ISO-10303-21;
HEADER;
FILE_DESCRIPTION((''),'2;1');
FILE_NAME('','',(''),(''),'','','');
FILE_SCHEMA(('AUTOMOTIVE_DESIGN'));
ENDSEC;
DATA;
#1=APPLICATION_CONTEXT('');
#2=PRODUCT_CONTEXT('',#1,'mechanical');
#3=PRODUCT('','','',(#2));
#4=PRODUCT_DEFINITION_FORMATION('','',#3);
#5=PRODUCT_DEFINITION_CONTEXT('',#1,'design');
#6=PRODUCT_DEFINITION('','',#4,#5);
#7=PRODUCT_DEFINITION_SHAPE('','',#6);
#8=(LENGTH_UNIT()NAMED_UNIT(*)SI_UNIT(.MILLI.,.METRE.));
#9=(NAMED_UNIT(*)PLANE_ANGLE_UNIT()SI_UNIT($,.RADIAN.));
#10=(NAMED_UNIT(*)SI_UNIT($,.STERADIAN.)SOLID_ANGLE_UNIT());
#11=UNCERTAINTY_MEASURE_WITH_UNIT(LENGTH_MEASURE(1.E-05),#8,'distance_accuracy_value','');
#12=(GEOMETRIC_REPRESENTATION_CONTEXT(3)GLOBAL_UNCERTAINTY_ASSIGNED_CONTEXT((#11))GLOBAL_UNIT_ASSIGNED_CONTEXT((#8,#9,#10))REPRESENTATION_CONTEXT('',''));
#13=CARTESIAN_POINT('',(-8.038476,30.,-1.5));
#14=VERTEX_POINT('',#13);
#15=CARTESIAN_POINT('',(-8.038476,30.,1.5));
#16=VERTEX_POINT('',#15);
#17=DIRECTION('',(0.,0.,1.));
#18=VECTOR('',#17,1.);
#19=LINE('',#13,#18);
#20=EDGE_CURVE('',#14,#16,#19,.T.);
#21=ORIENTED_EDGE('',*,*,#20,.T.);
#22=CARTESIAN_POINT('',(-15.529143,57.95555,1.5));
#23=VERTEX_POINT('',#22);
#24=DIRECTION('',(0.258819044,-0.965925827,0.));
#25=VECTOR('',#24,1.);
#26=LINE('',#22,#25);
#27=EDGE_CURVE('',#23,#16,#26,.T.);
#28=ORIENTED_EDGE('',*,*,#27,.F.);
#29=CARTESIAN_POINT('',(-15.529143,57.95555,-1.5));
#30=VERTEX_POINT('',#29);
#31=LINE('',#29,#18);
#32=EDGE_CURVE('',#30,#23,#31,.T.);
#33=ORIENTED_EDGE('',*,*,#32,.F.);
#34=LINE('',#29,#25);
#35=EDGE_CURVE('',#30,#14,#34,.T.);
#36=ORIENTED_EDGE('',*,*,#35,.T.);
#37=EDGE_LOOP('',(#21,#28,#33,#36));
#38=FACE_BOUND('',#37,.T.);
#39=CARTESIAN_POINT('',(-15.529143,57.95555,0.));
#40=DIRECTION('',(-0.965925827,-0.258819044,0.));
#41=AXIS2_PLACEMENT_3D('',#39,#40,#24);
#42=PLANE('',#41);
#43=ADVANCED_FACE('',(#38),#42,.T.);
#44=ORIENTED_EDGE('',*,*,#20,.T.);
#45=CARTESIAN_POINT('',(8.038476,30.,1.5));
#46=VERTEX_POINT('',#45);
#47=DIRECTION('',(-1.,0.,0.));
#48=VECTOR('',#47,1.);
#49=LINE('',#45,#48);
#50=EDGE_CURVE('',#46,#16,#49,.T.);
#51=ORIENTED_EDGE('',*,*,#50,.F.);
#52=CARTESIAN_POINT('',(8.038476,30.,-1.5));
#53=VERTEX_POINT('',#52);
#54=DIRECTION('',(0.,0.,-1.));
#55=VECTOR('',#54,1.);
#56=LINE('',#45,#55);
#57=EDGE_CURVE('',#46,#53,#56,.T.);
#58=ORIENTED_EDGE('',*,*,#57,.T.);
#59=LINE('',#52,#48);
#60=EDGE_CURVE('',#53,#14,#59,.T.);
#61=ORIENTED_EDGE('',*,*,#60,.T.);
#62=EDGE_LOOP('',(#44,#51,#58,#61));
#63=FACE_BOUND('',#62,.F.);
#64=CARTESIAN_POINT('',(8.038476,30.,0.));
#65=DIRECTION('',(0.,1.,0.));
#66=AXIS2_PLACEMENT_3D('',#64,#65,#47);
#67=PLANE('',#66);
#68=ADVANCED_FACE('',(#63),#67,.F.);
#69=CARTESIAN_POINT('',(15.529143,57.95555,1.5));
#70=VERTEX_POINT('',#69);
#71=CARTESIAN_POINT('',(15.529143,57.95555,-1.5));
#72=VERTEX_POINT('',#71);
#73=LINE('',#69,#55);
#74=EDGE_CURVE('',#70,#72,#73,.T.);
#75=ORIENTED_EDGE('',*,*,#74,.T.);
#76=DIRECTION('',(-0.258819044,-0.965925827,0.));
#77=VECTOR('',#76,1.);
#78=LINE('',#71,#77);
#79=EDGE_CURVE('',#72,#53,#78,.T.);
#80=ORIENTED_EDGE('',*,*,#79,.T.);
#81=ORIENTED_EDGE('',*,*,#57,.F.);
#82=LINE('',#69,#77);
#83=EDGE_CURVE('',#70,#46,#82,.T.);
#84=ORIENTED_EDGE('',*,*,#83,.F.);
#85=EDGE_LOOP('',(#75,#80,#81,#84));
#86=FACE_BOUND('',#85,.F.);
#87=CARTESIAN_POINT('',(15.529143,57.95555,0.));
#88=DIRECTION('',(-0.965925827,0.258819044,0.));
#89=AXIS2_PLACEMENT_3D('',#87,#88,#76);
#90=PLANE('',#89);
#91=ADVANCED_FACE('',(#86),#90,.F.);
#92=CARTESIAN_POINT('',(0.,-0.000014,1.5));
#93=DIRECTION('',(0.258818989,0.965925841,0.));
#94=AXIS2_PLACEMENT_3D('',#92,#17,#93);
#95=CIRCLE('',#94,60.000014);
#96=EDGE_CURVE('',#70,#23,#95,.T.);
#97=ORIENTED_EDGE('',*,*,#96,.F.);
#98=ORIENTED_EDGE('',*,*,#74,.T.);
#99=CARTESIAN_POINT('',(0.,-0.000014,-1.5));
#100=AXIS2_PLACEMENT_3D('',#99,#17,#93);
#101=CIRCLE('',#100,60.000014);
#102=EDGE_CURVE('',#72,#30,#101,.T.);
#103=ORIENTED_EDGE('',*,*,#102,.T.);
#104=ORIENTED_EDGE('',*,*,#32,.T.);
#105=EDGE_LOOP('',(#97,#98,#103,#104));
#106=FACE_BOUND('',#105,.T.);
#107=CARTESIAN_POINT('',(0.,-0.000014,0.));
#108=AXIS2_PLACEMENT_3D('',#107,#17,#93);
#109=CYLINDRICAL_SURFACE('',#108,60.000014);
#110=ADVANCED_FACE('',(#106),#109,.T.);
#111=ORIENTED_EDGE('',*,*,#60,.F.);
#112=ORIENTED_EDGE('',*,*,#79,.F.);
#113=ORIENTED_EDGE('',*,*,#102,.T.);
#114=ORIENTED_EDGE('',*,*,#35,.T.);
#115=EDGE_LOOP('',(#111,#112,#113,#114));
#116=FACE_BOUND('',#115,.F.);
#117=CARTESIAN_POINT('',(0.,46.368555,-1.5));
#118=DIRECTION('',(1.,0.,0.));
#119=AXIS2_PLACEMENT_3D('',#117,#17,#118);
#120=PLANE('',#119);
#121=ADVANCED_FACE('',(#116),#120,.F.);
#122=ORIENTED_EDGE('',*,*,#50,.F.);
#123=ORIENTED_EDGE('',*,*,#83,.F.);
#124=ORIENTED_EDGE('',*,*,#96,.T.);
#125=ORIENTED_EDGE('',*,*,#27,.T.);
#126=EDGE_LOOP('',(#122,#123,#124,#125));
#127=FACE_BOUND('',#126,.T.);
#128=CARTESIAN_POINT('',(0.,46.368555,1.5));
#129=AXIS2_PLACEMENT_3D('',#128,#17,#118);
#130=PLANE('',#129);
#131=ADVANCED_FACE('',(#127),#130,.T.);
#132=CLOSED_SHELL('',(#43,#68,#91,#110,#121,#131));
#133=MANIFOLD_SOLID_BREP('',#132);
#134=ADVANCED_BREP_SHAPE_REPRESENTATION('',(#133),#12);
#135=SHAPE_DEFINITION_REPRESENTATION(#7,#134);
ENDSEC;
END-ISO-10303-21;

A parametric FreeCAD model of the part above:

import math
import FreeCAD as App
import Part
import Sketcher
Q = App.Units.Quantity

doc = App.newDocument("Part")
body = doc.addObject("PartDesign::Body", "Body")

sketch1 = body.newObject("Sketcher::SketchObject", "Sketch")
sketch1.AttachmentSupport = (doc.getObject("XY_Plane"), [""])
sketch1.MapMode = "FlatFace"
sketch1.addGeometry(Part.ArcOfCircle(Part.Circle(App.Vector(0, 0, 0), App.Vector(0, 0, 1), 60), math.radians(75), math.radians(105)), False)
sketch1.addGeometry(Part.LineSegment(App.Vector(-16, 58, 0), App.Vector(-8, 30, 0)), False)
sketch1.addGeometry(Part.LineSegment(App.Vector(-8, 30, 0), App.Vector(8, 30, 0)), False)
sketch1.addGeometry(Part.LineSegment(App.Vector(8, 30, 0), App.Vector(16, 58, 0)), False)
sketch1.addConstraint(Sketcher.Constraint("Coincident", 0, 2, 1, 1))
sketch1.addConstraint(Sketcher.Constraint("Coincident", 1, 2, 2, 1))
sketch1.addConstraint(Sketcher.Constraint("Coincident", 2, 2, 3, 1))
sketch1.addConstraint(Sketcher.Constraint("Coincident", 3, 2, 0, 1))
sketch1.addConstraint(Sketcher.Constraint("Horizontal", 2))
sketch1.addConstraint(Sketcher.Constraint("Symmetric", 0, 2, 3, 2, -2))
sketch1.addConstraint(Sketcher.Constraint("Equal", 1, 3))
sketch1.addConstraint(Sketcher.Constraint("Angle", 1, Q("-75 deg")))
sketch1.addConstraint(Sketcher.Constraint("DistanceY", -1, 1, 1, 2, 30.0))
sketch1.addConstraint(Sketcher.Constraint("Radius", 0, 60.000014))
sketch1.addConstraint(Sketcher.Constraint("DistanceX", 2, 1, 2, 2, 16.076952))
sketch1.addConstraint(Sketcher.Constraint("DistanceY", -1, 1, 0, 2, 57.95555))
pad1 = body.newObject("PartDesign::Pad", "Pad")
pad1.Profile = sketch1
pad1.Length = 3
pad1.Midplane = True

doc.recompute()
